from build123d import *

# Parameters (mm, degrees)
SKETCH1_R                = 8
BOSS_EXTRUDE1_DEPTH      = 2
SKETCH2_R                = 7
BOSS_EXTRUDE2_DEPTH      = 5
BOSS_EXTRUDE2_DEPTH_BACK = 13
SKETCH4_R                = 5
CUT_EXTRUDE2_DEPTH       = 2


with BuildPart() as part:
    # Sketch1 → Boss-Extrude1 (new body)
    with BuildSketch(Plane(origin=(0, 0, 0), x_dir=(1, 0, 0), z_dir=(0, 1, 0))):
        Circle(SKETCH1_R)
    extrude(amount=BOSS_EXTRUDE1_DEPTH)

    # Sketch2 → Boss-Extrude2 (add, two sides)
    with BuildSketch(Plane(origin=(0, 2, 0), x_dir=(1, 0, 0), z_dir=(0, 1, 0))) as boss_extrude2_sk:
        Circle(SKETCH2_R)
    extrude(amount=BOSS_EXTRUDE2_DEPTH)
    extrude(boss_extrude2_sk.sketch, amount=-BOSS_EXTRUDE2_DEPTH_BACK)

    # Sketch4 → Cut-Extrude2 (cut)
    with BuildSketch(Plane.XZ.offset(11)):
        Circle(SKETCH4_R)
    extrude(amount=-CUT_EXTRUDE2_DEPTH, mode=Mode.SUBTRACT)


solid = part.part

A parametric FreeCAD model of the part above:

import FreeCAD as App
import Part
import Sketcher

V = App.Vector

doc = App.newDocument("Part")
body = doc.addObject("PartDesign::Body", "Body")

# Sketch on XZ plane
sketch1 = body.newObject("Sketcher::SketchObject", "Sketch")
sketch1.AttachmentSupport = (doc.getObject("XZ_Plane"), [""])
sketch1.MapMode = "FlatFace"
sketch1.addGeometry(Part.Circle(V(0, 0, 0), V(0, 0, 1), 8), False)
sketch1.addConstraint([
    Sketcher.Constraint("Coincident", 0, 3, -1, 1),
    Sketcher.Constraint("Diameter", 0, 16.0),
])
pad1 = body.newObject("PartDesign::Pad", "Pad")
pad1.Profile = sketch1
pad1.Length = 2
pad1.Reversed = True

# Sketch on XZ plane
sketch2 = body.newObject("Sketcher::SketchObject", "Sketch001")
sketch2.AttachmentSupport = (doc.getObject("XZ_Plane"), [""])
sketch2.MapMode = "FlatFace"
sketch2.AttachmentOffset = App.Placement(V(0, 0, -2), App.Rotation())
sketch2.addGeometry(Part.Circle(V(0, 0, 0), V(0, 0, 1), 7), False)
sketch2.addConstraint([
    Sketcher.Constraint("Coincident", 0, 3, -1, 1),
    Sketcher.Constraint("Diameter", 0, 14.0),
])
pad2 = body.newObject("PartDesign::Pad", "Pad001")
pad2.Profile = sketch2
pad2.Type = "TwoLengths"
pad2.Length = 5
pad2.Length2 = 13
pad2.Reversed = True

# Sketch on XZ plane
sketch3 = body.newObject("Sketcher::SketchObject", "Sketch002")
sketch3.AttachmentSupport = (doc.getObject("XZ_Plane"), [""])
sketch3.MapMode = "FlatFace"
sketch3.AttachmentOffset = App.Placement(V(0, 0, 11), App.Rotation())
sketch3.addGeometry(Part.Circle(V(0, 0, 0), V(0, 0, 1), 5), False)
sketch3.addConstraint([
    Sketcher.Constraint("Coincident", 0, 3, -1, 1),
    Sketcher.Constraint("Diameter", 0, 10.0),
])
pocket1 = body.newObject("PartDesign::Pocket", "Pocket")
pocket1.Profile = sketch3
pocket1.Length = 2

doc.recompute()
